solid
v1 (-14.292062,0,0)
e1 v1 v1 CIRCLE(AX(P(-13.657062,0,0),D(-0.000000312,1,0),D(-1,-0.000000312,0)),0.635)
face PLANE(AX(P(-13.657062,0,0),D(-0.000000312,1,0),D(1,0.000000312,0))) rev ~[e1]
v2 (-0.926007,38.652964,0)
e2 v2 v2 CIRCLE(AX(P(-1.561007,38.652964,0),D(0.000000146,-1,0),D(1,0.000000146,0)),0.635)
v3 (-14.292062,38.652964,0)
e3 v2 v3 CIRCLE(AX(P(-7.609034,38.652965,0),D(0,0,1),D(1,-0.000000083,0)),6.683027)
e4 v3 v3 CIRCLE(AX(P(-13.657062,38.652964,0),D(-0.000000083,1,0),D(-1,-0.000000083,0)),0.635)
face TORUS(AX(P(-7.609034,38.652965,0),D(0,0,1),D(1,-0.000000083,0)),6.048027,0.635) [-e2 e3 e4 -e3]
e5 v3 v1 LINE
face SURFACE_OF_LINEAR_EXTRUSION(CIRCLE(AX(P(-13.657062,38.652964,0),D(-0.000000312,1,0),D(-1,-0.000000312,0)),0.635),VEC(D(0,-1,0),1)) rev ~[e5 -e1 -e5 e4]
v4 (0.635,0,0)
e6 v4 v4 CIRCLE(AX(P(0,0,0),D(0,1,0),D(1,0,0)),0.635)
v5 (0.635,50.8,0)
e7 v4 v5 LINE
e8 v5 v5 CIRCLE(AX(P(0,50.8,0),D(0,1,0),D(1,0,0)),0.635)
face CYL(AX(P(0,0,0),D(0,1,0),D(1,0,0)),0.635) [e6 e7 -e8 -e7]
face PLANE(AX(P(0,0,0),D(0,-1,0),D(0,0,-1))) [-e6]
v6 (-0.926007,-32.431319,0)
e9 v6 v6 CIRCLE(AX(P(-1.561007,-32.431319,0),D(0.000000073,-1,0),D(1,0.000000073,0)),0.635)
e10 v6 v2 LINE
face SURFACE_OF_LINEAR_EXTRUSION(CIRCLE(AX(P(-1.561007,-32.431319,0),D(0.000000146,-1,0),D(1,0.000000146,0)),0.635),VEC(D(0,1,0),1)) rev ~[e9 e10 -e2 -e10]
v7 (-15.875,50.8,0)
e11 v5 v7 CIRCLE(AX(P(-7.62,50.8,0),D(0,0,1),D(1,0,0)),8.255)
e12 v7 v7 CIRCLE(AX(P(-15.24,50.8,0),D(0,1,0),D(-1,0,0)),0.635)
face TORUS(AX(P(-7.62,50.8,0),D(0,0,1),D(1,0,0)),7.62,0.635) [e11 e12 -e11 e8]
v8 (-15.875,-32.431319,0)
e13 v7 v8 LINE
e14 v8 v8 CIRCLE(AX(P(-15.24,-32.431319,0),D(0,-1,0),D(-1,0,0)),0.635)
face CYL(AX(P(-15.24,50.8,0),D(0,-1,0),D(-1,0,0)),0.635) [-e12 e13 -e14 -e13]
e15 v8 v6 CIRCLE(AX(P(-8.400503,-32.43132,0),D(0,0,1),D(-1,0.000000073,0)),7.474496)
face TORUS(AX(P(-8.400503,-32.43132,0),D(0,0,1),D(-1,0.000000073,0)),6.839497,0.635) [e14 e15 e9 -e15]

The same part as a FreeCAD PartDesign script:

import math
import FreeCAD as App
import Part
import Sketcher

V = App.Vector
Q = App.Units.Quantity

doc = App.newDocument("Part")
body = doc.addObject("PartDesign::Body", "Body")

# Sketch on XZ plane
sketch1 = body.newObject("Sketcher::SketchObject", "Sketch")
sketch1.AttachmentSupport = (doc.getObject("XZ_Plane"), [""])
sketch1.MapMode = "FlatFace"
sketch1.addGeometry(Part.Circle(V(0, 0, 0), V(0, 0, 1), 0.6), False)
sketch1.addConstraint([
    Sketcher.Constraint("Coincident", 0, 3, -1, 1),
    Sketcher.Constraint("Diameter", 0, Q("0.05 in")),
])

# Sketch on XY plane
sketch2 = body.newObject("Sketcher::SketchObject", "Sketch001")
sketch2.AttachmentSupport = (doc.getObject("XY_Plane"), [""])
sketch2.MapMode = "FlatFace"
sketch2.addGeometry([
    Part.LineSegment(V(0, 0, 0), V(0, 51, 0)),  # 0
    Part.ArcOfCircle(Part.Circle(V(-8, 51, 0), V(0, 0, 1), 8), math.radians(0), math.radians(180)),  # 1
    Part.LineSegment(V(-15, 51, 0), V(-15, -32, 0)),  # 2
    Part.ArcOfCircle(Part.Circle(V(-8, -32, 0), V(0, 0, 1), 7), math.radians(180), math.radians(360)),  # 3
    Part.LineSegment(V(-2, -32, 0), V(-2, 39, 0)),  # 4
    Part.ArcOfCircle(Part.Circle(V(-8, 39, 0), V(0, 0, 1), 6), math.radians(0), math.radians(180)),  # 5
    Part.LineSegment(V(-14, 39, 0), V(-14, 0, 0)),  # 6
], False)
sketch2.addConstraint([
    Sketcher.Constraint("Tangent", 0, 2, 1, 1),
    Sketcher.Constraint("Tangent", 1, 2, 2, 1),
    Sketcher.Constraint("Tangent", 2, 2, 3, 1),
    Sketcher.Constraint("Tangent", 3, 2, 4, 1),
    Sketcher.Constraint("Tangent", 4, 2, 5, 1),
    Sketcher.Constraint("Tangent", 5, 2, 6, 1),
    Sketcher.Constraint("Vertical", 0),
    Sketcher.Constraint("Vertical", 2),
    Sketcher.Constraint("Vertical", 4),
    Sketcher.Constraint("Vertical", 6),
    Sketcher.Constraint("Coincident", 0, 1, -1, 1),
    Sketcher.Constraint("PointOnObject", 6, 2, -1),
    Sketcher.Constraint("Radius", 1, Q("0.3 in")),
    Sketcher.Constraint("DistanceY", 0, 1, 0, 2, Q("2 in")),
    Sketcher.Constraint("Radius", 3, Q("6.839497 mm")),
    Sketcher.Constraint("Radius", 5, Q("6.048027 mm")),
    Sketcher.Constraint("DistanceY", 2, 2, 2, 1, Q("83.231319 mm")),
    Sketcher.Constraint("DistanceY", 4, 1, 4, 2, Q("71.084283 mm")),
])
doc.recompute()

additivepipe = body.newObject("PartDesign::AdditivePipe", "AdditivePipe")
additivepipe.Profile = sketch1
additivepipe.Spine = (sketch2, ["Edge1", "Edge2", "Edge3", "Edge4", "Edge5", "Edge6", "Edge7"])

doc.recompute()
